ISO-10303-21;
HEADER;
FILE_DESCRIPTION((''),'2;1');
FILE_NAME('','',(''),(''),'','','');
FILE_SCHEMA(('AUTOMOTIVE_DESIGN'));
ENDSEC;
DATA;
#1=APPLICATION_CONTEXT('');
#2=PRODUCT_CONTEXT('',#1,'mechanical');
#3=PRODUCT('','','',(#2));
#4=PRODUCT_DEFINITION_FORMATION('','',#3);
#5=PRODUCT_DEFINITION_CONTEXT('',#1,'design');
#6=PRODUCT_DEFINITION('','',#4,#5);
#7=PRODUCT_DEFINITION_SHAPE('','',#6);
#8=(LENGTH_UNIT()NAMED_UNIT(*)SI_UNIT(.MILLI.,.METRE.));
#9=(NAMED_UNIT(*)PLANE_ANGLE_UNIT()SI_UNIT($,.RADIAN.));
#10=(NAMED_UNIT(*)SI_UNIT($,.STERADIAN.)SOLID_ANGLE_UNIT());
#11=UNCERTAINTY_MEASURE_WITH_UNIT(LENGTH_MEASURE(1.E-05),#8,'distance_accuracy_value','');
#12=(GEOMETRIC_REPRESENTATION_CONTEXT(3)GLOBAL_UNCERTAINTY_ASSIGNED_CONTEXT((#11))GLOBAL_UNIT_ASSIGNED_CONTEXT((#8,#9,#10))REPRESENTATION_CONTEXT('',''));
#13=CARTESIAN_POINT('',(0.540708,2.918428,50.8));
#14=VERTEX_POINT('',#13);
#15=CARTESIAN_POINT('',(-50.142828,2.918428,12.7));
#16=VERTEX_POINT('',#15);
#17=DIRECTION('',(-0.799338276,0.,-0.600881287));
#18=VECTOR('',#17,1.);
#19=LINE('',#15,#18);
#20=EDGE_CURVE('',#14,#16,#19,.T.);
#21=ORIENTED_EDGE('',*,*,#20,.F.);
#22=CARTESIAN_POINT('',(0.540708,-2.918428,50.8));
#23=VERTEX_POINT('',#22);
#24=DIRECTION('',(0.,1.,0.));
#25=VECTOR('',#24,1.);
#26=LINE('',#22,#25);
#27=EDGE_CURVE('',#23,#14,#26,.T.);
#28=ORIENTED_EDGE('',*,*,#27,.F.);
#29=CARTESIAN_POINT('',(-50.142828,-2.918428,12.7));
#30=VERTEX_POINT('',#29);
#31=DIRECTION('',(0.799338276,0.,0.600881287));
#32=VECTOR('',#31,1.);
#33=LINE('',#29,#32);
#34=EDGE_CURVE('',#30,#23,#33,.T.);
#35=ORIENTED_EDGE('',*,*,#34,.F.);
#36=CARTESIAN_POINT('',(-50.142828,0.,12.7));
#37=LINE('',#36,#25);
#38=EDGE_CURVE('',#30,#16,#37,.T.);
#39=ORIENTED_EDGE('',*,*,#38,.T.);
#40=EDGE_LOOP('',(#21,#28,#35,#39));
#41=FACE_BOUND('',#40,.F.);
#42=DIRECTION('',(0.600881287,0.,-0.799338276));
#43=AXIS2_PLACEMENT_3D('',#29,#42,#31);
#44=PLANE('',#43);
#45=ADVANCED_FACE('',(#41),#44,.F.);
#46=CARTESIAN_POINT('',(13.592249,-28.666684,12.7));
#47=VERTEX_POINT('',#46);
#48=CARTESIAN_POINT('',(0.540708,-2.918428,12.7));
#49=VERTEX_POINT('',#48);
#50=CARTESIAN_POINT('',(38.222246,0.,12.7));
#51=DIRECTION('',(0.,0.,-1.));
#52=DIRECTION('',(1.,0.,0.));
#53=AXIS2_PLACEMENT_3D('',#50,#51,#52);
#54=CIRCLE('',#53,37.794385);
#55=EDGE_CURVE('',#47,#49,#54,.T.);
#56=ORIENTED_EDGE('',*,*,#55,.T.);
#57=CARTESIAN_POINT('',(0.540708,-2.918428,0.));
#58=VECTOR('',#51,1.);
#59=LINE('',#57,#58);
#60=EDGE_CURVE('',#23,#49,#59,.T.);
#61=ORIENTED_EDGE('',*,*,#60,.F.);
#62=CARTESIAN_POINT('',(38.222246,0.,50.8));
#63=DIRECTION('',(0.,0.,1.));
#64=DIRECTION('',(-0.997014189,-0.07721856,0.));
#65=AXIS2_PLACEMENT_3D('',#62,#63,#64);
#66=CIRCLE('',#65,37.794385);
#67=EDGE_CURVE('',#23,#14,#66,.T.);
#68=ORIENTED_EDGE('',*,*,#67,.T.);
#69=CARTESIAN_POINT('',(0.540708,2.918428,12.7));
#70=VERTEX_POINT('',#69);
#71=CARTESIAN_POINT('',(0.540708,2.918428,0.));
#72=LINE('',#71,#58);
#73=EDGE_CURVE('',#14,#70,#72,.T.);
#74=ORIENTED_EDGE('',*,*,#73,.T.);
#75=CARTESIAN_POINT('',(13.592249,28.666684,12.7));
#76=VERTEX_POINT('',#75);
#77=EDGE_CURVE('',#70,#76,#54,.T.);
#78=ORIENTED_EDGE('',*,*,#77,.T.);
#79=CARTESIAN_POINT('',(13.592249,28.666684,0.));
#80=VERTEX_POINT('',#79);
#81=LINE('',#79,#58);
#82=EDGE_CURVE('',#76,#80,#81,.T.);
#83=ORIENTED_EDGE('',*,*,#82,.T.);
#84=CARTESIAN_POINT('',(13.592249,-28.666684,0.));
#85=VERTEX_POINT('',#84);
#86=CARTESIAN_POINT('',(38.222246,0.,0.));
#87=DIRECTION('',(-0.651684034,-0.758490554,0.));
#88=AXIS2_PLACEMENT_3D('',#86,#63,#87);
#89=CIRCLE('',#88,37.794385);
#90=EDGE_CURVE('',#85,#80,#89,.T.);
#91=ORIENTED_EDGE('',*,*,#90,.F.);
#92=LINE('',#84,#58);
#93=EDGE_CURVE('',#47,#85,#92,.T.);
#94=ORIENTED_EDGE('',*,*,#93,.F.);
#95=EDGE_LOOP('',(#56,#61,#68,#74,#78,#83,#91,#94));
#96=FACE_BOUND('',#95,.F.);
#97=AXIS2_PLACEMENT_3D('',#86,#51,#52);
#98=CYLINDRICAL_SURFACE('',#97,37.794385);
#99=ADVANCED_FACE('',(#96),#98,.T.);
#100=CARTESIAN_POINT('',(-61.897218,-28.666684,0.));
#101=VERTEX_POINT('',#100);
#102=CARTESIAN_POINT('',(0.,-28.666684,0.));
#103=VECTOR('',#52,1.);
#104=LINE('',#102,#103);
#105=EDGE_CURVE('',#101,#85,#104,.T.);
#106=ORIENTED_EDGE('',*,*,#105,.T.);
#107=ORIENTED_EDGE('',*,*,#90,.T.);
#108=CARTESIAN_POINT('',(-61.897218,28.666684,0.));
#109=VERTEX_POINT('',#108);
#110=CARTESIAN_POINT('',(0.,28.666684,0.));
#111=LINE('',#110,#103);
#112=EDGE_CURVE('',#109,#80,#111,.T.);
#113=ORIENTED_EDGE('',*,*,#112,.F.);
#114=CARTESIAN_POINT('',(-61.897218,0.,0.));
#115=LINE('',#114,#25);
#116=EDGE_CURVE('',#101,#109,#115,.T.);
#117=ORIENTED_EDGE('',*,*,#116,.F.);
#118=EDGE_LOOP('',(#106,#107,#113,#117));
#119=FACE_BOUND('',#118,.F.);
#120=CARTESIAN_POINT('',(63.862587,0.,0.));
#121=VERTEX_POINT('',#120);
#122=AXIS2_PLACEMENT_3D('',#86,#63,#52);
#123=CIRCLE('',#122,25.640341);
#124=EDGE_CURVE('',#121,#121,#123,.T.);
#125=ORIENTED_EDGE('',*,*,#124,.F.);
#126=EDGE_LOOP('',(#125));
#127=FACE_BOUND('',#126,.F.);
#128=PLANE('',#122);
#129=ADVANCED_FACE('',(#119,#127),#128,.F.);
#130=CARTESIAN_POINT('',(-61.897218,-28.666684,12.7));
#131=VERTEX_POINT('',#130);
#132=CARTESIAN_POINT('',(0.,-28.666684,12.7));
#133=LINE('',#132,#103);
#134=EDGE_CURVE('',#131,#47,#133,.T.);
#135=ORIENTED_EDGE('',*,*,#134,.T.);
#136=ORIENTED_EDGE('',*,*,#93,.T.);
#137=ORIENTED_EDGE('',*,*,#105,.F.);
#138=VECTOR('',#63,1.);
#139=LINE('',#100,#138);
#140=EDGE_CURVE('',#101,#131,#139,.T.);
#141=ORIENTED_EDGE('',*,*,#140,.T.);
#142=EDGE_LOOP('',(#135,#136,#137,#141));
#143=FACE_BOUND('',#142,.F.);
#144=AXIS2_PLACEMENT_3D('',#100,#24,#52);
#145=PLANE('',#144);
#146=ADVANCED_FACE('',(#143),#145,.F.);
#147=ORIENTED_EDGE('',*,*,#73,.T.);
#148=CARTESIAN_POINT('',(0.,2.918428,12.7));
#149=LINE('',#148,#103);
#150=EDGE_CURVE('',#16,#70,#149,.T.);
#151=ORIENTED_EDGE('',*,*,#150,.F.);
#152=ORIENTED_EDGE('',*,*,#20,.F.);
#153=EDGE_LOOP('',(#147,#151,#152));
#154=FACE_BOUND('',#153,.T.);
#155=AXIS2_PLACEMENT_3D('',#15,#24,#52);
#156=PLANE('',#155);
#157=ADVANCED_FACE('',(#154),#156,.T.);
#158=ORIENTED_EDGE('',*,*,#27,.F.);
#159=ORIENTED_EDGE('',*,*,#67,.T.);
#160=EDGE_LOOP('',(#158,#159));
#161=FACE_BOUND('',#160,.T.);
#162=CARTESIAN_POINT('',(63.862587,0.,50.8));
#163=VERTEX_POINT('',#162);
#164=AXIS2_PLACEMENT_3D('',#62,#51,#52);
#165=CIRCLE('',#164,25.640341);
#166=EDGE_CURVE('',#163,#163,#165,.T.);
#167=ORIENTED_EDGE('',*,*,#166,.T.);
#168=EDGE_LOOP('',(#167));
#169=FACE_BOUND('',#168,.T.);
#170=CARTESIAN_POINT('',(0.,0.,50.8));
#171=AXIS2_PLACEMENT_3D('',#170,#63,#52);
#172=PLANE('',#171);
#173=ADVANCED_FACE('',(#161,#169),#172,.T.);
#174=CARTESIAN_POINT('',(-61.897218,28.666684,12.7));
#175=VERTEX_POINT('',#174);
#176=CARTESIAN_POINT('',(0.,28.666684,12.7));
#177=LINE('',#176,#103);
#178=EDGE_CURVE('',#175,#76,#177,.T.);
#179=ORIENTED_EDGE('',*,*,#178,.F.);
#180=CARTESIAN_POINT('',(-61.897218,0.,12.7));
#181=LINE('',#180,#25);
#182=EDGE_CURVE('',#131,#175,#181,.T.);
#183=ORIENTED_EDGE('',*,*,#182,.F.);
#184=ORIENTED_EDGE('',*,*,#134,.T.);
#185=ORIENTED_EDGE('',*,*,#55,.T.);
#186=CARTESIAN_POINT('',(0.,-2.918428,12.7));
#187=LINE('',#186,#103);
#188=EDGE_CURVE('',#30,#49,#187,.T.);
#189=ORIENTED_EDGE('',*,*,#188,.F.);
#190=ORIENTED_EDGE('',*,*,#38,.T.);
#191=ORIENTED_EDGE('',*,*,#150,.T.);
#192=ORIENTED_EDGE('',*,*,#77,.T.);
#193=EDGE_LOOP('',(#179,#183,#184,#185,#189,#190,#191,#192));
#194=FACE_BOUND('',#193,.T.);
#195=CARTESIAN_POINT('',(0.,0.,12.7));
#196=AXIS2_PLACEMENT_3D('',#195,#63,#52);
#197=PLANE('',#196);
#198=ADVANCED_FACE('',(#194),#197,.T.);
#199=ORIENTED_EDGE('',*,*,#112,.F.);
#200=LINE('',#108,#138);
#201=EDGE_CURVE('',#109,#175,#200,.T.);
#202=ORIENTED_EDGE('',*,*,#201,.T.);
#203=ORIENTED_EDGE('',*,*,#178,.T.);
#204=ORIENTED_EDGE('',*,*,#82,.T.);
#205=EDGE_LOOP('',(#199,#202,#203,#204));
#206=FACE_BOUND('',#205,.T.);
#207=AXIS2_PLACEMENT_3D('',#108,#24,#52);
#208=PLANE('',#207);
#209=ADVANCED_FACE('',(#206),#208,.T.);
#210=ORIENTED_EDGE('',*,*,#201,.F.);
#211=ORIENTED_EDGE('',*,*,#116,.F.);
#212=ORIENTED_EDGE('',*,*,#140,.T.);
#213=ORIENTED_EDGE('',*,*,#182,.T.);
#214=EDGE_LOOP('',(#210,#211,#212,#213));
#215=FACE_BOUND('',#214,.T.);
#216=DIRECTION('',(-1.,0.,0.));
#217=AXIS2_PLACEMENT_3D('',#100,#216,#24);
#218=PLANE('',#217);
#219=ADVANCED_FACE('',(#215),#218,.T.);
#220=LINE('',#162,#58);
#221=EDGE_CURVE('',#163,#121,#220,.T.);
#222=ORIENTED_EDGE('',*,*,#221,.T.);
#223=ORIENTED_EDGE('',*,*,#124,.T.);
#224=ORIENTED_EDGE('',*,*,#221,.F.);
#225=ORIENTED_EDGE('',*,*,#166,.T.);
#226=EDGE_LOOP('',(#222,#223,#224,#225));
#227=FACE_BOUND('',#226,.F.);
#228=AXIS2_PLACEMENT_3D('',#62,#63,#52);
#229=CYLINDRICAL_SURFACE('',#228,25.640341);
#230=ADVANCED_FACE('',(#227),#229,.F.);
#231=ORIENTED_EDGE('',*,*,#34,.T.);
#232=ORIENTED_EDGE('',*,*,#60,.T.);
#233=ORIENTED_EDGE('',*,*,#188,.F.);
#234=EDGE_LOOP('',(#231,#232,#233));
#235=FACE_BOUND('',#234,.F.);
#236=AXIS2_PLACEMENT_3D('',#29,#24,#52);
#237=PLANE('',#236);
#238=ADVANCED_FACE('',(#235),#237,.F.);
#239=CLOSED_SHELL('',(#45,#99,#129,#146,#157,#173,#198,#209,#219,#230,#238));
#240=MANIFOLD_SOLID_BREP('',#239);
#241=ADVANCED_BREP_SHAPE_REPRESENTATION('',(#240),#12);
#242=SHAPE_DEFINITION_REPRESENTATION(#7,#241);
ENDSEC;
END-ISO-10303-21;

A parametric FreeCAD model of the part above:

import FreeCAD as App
import Part
import Sketcher
Q = App.Units.Quantity


def add_polygon(sketch, points):
    """Adds a closed chain of lines whose ends are joined by coincident constraints."""
    first, n = sketch.GeometryCount, len(points)
    for a, b in zip(points, points[1:] + points[:1]):
        sketch.addGeometry(Part.LineSegment(App.Vector(*a, 0), App.Vector(*b, 0)), False)
    for i in range(n):
        sketch.addConstraint(Sketcher.Constraint("Coincident", first + i, 2, first + (i + 1) % n, 1))

doc = App.newDocument("Part")
params = doc.addObject("Spreadsheet::Sheet", "Params")
for row, (alias, value) in enumerate([
    ("pad1_length", "0.5 in"),
    ("pad2_length", "2 in"),
    ("pocket1_length", "2 in"),
    ("pad3_length", "1.5 in"),
    ("pocket2_length", "2 in"),
    ("sketch6_height", "1.5 in"),
    ("pocket3_length", "1 in"),
], start=1):
    params.set(f"A{row}", alias)
    params.set(f"B{row}", "=" + value)
    params.setAlias(f"B{row}", alias)

body = doc.addObject("PartDesign::Body", "Body")

sketch1 = doc.addObject("Sketcher::SketchObject", "Sketch")
body.addObject(sketch1)
sketch1.AttachmentSupport = (doc.XY_Plane, [""])
sketch1.MapMode = "FlatFace"
add_polygon(sketch1, [(-62, 29), (-62, -29), (62, -29), (62, 29)])
sketch1.addConstraint(Sketcher.Constraint("Vertical", 0))
sketch1.addConstraint(Sketcher.Constraint("Horizontal", 1))
sketch1.addConstraint(Sketcher.Constraint("Vertical", 2))
sketch1.addConstraint(Sketcher.Constraint("Horizontal", 3))
sketch1.addConstraint(Sketcher.Constraint("Symmetric", 0, 2, 2, 2, -1, 1))
sketch1.addConstraint(Sketcher.Constraint("DistanceX", 1, 1, 1, 2, 123.794436))
sketch1.addConstraint(Sketcher.Constraint("DistanceY", 0, 2, 0, 1, 57.333368))
pad1 = doc.addObject("PartDesign::Pad", "Pad")
body.addObject(pad1)
pad1.Profile = sketch1
pad1.setExpression("Length", "Params.pad1_length")

sketch2 = doc.addObject("Sketcher::SketchObject", "Sketch001")
body.addObject(sketch2)
sketch2.AttachmentSupport = (doc.XY_Plane, [""])
sketch2.MapMode = "FlatFace"
sketch2.addGeometry(Part.Circle(App.Vector(38, 0, 0), App.Vector(0, 0, 1), 38), False)
sketch2.addConstraint(Sketcher.Constraint("PointOnObject", 0, 3, -1))
sketch2.addConstraint(Sketcher.Constraint("Diameter", 0, 75.58877))
sketch2.addConstraint(Sketcher.Constraint("DistanceX", -1, 1, 0, 3, 38.222246))
pad2 = doc.addObject("PartDesign::Pad", "Pad001")
body.addObject(pad2)
pad2.Profile = sketch2
pad2.setExpression("Length", "Params.pad2_length")

sketch3 = doc.addObject("Sketcher::SketchObject", "Sketch002")
body.addObject(sketch3)
sketch3.AttachmentSupport = (doc.XY_Plane, [""])
sketch3.MapMode = "FlatFace"
sketch3.AttachmentOffset = App.Placement(App.Vector(0, 0, 2 * 25.4), App.Rotation())
sketch3.addGeometry(Part.Circle(App.Vector(38, 0, 0), App.Vector(0, 0, 1), 26), False)
sketch3.addConstraint(Sketcher.Constraint("PointOnObject", 0, 3, -1))
sketch3.addConstraint(Sketcher.Constraint("Diameter", 0, 51.280682))
sketch3.addConstraint(Sketcher.Constraint("DistanceX", -1, 1, 0, 3, 38.222246))
pocket1 = doc.addObject("PartDesign::Pocket", "Pocket")
body.addObject(pocket1)
pocket1.Profile = sketch3
pocket1.setExpression("Length", "Params.pocket1_length")

sketch4 = doc.addObject("Sketcher::SketchObject", "Sketch003")
body.addObject(sketch4)
sketch4.AttachmentSupport = (doc.XY_Plane, [""])
sketch4.MapMode = "FlatFace"
sketch4.AttachmentOffset = App.Placement(App.Vector(0, 0, 0.5 * 25.4), App.Rotation())
add_polygon(sketch4, [(-50, 3), (-50, -3), (50, -3), (50, 3)])
sketch4.addConstraint(Sketcher.Constraint("Vertical", 0))
sketch4.addConstraint(Sketcher.Constraint("Horizontal", 1))
sketch4.addConstraint(Sketcher.Constraint("Vertical", 2))
sketch4.addConstraint(Sketcher.Constraint("Horizontal", 3))
sketch4.addConstraint(Sketcher.Constraint("Symmetric", 0, 2, 2, 2, -1, 1))
sketch4.addConstraint(Sketcher.Constraint("DistanceX", 1, 1, 1, 2, 100.285656))
sketch4.addConstraint(Sketcher.Constraint("DistanceY", 0, 2, 0, 1, 5.836856))
pad3 = doc.addObject("PartDesign::Pad", "Pad002")
body.addObject(pad3)
pad3.Profile = sketch4
pad3.setExpression("Length", "Params.pad3_length")

sketch5 = doc.addObject("Sketcher::SketchObject", "Sketch004")
body.addObject(sketch5)
sketch5.AttachmentSupport = (doc.XY_Plane, [""])
sketch5.MapMode = "FlatFace"
sketch5.AttachmentOffset = App.Placement(App.Vector(0, 0, 2 * 25.4), App.Rotation())
sketch5.addGeometry(Part.Circle(App.Vector(38, 0, 0), App.Vector(0, 0, 1), 26), False)
sketch5.addConstraint(Sketcher.Constraint("PointOnObject", 0, 3, -1))
sketch5.addConstraint(Sketcher.Constraint("Diameter", 0, 51.280682))
sketch5.addConstraint(Sketcher.Constraint("DistanceX", -1, 1, 0, 3, 38.222246))
pocket2 = doc.addObject("PartDesign::Pocket", "Pocket001")
body.addObject(pocket2)
pocket2.Profile = sketch5
pocket2.setExpression("Length", "Params.pocket2_length")

sketch6 = doc.addObject("Sketcher::SketchObject", "Sketch005")
body.addObject(sketch6)
sketch6.AttachmentSupport = (doc.XZ_Plane, [""])
sketch6.MapMode = "FlatFace"
sketch6.AttachmentOffset = App.Placement(App.Vector(0, 0, 2.918428), App.Rotation())
add_polygon(sketch6, [(-50, 13), (1, 51), (-50, 51)])
sketch6.addConstraint(Sketcher.Constraint("Horizontal", 1))
sketch6.addConstraint(Sketcher.Constraint("Vertical", 2))
sketch6.addConstraint(Sketcher.Constraint("DistanceY", 2, 2, 2, 1, Q("1.5 in")))
sketch6.addConstraint(Sketcher.Constraint("DistanceY", -1, 1, 0, 2, Q("2 in")))
sketch6.addConstraint(Sketcher.Constraint("DistanceX", 1, 2, 1, 1, 50.683536))
sketch6.addConstraint(Sketcher.Constraint("DistanceX", 1, 2, -1, 1, 50.142828))
sketch6.setExpression("Constraints[5]", "Params.sketch6_height")
pocket3 = doc.addObject("PartDesign::Pocket", "Pocket002")
body.addObject(pocket3)
pocket3.Profile = sketch6
pocket3.setExpression("Length", "Params.pocket3_length")

doc.recompute()
